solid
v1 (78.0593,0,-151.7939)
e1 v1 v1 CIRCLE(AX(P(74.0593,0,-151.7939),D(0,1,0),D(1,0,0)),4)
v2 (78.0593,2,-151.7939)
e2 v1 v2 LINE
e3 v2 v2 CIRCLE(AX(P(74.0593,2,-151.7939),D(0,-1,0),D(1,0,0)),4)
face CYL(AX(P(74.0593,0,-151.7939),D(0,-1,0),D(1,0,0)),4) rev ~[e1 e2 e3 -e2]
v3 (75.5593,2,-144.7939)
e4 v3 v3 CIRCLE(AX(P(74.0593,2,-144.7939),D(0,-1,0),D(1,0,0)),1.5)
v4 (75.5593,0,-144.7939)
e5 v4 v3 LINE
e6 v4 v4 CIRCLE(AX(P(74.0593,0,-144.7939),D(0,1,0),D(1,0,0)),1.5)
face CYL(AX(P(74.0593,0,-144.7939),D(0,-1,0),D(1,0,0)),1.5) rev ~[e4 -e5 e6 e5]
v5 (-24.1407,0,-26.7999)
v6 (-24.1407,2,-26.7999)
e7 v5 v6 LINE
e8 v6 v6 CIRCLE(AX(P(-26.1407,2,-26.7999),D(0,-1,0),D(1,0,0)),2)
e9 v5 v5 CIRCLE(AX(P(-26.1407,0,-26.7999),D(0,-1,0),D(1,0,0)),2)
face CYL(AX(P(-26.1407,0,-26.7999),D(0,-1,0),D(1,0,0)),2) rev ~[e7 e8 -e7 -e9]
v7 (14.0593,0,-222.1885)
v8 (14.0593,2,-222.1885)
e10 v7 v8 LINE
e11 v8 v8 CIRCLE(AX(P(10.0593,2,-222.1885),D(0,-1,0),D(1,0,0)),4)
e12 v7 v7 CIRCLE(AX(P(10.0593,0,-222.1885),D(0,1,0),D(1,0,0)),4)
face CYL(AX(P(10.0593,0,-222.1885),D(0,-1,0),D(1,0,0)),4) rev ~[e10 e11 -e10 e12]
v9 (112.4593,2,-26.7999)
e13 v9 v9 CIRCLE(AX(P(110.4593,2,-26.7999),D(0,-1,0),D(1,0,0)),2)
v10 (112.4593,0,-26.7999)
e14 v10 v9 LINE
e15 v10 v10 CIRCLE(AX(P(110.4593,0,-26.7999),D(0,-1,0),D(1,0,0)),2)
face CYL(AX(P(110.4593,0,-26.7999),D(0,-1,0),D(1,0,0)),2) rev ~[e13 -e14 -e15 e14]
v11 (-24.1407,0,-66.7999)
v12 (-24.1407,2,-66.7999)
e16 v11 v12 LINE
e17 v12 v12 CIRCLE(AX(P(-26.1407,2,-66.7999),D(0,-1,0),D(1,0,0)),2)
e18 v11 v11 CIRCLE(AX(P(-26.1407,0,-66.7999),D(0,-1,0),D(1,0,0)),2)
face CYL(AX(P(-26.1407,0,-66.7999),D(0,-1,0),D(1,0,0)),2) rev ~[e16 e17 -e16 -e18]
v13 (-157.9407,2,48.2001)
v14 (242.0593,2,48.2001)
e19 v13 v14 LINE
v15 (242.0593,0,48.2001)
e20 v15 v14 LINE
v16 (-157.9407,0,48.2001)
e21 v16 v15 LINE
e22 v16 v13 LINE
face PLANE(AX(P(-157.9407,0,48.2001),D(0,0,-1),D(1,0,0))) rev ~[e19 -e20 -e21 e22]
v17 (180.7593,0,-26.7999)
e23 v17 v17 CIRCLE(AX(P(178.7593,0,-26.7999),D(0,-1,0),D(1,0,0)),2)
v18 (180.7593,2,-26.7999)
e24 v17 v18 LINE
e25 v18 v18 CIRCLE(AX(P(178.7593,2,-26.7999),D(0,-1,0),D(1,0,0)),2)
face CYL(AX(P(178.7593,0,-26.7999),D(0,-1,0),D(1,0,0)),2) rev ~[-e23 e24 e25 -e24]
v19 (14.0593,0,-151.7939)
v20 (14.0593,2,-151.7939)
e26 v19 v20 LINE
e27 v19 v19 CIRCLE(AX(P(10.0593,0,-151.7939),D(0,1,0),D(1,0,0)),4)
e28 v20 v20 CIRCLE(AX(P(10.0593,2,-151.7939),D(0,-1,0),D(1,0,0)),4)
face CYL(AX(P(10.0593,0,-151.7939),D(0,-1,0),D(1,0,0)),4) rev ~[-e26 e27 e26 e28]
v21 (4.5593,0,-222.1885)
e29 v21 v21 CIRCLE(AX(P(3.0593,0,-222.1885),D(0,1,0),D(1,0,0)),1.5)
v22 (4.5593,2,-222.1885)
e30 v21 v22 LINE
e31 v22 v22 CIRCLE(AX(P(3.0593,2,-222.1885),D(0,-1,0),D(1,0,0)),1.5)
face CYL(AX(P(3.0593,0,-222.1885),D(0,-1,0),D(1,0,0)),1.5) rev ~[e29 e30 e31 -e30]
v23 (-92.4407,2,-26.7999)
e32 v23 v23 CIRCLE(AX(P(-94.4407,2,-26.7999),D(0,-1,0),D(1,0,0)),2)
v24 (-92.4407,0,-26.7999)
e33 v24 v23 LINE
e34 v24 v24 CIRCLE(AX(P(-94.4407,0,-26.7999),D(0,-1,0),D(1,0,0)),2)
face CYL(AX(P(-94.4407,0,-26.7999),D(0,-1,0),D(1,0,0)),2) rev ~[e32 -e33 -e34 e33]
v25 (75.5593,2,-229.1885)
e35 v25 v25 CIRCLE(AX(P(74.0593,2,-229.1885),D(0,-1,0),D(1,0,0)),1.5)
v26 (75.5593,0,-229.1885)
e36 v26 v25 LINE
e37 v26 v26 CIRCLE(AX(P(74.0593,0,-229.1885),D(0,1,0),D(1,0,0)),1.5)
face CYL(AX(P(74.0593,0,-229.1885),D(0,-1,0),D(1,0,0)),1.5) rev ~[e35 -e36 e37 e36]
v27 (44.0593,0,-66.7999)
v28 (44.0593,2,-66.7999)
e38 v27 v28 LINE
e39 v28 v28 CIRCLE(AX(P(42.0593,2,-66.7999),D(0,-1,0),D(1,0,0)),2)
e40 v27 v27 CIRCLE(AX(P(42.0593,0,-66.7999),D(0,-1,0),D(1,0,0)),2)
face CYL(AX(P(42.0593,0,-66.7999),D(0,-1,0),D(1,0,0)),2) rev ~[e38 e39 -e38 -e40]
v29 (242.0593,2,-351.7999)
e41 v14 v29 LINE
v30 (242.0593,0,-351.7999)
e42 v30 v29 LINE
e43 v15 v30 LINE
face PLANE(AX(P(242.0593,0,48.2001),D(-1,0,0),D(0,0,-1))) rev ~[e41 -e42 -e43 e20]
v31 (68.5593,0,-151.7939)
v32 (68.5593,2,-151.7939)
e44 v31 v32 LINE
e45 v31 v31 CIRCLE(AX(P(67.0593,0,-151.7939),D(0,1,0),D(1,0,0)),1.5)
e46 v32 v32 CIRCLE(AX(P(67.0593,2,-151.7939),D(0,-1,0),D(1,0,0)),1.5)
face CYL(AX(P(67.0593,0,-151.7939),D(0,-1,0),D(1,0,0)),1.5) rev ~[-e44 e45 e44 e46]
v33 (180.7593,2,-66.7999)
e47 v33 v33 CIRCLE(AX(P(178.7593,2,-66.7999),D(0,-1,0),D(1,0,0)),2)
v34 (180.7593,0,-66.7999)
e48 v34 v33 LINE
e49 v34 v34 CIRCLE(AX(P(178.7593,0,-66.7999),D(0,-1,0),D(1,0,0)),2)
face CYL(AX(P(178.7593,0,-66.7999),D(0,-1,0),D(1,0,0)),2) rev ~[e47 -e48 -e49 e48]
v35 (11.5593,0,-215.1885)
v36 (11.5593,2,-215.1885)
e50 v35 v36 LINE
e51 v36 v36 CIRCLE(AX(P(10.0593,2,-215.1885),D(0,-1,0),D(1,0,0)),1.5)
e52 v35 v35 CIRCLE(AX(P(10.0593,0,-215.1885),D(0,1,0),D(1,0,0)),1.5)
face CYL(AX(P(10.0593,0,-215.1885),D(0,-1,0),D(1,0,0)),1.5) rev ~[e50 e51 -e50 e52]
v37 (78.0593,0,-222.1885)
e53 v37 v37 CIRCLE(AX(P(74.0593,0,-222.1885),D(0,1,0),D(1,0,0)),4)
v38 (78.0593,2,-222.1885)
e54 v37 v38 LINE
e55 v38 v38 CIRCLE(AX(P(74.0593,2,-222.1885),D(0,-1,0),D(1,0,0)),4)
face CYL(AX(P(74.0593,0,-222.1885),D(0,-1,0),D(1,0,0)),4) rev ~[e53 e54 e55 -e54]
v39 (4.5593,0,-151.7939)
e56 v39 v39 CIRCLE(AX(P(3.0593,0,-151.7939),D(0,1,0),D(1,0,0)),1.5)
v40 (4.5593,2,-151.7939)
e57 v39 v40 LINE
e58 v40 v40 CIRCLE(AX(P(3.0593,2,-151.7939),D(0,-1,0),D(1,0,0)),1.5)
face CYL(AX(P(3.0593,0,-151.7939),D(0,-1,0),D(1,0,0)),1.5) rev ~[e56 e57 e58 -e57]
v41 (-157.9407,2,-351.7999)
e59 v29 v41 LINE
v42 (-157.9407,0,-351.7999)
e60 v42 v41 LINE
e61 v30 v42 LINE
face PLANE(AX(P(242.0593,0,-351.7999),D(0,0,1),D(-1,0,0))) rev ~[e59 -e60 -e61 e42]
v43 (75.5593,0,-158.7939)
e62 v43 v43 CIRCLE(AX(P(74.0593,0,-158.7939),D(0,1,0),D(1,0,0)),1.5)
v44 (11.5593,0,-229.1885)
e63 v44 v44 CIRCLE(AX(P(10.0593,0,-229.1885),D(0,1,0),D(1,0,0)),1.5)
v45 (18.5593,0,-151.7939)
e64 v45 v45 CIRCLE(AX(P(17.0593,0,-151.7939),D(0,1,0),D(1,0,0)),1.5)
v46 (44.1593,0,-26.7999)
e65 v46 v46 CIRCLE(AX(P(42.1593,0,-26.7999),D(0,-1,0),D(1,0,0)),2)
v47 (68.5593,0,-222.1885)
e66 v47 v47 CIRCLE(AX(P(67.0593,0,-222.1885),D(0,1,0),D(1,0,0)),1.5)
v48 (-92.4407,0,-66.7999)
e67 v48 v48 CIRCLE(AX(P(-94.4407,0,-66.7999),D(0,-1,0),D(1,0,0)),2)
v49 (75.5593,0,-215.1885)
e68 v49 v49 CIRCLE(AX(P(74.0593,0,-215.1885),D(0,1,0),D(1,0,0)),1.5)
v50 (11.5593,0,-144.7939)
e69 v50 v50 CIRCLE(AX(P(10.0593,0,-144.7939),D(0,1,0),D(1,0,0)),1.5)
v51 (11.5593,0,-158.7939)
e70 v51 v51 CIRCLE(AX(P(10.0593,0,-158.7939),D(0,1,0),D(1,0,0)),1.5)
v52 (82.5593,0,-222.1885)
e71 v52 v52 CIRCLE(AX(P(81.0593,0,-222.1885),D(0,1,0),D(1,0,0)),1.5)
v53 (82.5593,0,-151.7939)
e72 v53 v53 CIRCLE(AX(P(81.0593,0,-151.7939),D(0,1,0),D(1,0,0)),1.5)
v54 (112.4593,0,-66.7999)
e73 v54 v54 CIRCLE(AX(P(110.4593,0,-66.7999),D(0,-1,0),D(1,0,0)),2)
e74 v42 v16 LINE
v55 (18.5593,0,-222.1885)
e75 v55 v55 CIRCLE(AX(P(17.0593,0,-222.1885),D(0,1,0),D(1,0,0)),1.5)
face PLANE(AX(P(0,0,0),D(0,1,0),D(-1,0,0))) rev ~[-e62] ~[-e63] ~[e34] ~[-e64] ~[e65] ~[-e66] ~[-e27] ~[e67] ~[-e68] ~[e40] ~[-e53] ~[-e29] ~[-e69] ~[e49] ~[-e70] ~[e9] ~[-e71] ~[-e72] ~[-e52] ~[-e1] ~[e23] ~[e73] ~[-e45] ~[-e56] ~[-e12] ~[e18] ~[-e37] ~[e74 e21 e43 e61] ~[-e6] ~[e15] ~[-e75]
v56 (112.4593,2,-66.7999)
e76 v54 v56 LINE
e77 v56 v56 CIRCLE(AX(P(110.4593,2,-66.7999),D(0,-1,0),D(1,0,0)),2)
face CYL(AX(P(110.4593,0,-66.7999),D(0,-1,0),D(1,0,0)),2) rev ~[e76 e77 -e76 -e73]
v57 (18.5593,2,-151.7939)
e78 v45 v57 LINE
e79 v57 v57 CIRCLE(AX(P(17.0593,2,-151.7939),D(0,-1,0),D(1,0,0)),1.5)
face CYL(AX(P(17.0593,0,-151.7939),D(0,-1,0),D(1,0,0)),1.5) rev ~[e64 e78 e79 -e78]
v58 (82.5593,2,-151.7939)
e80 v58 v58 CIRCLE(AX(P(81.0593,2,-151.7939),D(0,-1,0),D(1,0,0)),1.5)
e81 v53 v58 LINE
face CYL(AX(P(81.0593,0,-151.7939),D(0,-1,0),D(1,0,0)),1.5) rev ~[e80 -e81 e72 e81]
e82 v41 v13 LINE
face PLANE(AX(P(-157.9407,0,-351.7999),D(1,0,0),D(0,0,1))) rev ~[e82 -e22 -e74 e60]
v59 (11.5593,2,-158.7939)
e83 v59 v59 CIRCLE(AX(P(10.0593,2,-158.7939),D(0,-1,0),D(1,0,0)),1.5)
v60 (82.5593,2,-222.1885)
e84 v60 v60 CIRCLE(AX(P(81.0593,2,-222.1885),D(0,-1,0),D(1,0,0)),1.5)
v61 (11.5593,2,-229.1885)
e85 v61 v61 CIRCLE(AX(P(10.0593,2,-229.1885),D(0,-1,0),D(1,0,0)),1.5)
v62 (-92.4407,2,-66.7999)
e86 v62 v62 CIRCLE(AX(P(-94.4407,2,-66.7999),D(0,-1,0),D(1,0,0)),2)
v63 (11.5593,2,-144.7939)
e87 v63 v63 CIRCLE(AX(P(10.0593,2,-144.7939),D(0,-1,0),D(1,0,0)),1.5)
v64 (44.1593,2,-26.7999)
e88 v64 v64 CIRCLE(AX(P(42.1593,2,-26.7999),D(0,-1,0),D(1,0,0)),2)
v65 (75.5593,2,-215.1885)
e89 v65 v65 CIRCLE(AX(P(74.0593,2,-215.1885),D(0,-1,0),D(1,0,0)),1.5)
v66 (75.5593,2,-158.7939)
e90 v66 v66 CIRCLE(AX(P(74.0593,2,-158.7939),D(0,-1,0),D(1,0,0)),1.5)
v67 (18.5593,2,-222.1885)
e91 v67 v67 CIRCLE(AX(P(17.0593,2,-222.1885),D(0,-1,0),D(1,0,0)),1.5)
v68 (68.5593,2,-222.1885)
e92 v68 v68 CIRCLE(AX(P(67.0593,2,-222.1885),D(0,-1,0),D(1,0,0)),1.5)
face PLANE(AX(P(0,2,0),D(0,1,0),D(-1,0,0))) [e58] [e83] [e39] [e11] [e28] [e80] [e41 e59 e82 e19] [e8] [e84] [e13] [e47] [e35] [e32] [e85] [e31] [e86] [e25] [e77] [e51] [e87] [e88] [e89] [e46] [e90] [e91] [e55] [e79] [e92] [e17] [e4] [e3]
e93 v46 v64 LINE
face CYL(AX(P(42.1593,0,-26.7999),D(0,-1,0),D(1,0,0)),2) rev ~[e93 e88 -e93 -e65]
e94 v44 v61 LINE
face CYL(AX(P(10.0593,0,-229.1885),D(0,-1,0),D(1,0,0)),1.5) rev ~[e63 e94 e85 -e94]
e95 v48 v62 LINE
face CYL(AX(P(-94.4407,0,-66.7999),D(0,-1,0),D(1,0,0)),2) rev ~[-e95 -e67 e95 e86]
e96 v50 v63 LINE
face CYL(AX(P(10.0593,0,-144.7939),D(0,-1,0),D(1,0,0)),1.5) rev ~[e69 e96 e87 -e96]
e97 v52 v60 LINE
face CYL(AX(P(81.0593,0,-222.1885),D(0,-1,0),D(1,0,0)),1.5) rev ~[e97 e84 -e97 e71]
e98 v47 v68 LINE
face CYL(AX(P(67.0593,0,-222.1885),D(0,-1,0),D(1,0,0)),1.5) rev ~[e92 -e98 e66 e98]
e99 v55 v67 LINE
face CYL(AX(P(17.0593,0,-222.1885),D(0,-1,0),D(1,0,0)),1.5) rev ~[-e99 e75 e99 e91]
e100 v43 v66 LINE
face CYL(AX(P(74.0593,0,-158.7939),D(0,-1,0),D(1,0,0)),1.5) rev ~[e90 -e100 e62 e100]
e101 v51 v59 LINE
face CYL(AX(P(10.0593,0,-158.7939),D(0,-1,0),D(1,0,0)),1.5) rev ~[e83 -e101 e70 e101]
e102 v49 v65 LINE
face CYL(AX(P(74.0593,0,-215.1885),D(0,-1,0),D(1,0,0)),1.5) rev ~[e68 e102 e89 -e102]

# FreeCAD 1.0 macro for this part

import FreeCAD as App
import Part
import Sketcher
from FreeCAD import Vector

doc = App.newDocument("Part")
body = doc.addObject("PartDesign::Body", "Body")

# Sketch on XZ plane
sketch1 = body.newObject("Sketcher::SketchObject", "Sketch")
sketch1.AttachmentSupport = (doc.getObject("XZ_Plane"), [""])
sketch1.MapMode = "FlatFace"
sketch1.addGeometry([
    Part.LineSegment(Vector(-158, -352, 0), Vector(-158, 48, 0)),
    Part.LineSegment(Vector(-158, 48, 0), Vector(242, 48, 0)),
    Part.LineSegment(Vector(242, 48, 0), Vector(242, -352, 0)),
    Part.LineSegment(Vector(242, -352, 0), Vector(-158, -352, 0)),
], False)
sketch1.addConstraint([
    Sketcher.Constraint("Coincident", 0, 2, 1, 1),
    Sketcher.Constraint("Coincident", 1, 2, 2, 1),
    Sketcher.Constraint("Coincident", 2, 2, 3, 1),
    Sketcher.Constraint("Coincident", 3, 2, 0, 1),
    Sketcher.Constraint("Vertical", 0),
    Sketcher.Constraint("Horizontal", 1),
    Sketcher.Constraint("Vertical", 2),
    Sketcher.Constraint("Horizontal", 3),
    Sketcher.Constraint("Equal", 3, 0),
    Sketcher.Constraint("DistanceX", 1, 1, 1, 2, 400.0),
    Sketcher.Constraint("DistanceY", -1, 1, 0, 2, 48.2),
    Sketcher.Constraint("DistanceX", 0, 2, -1, 1, 157.9407),
])
pad1 = body.newObject("PartDesign::Pad", "Pad")
pad1.Profile = sketch1
pad1.Length = 2
pad1.Reversed = True

# Sketch on XZ plane
sketch2 = body.newObject("Sketcher::SketchObject", "Sketch001")
sketch2.AttachmentSupport = (doc.getObject("XZ_Plane"), [""])
sketch2.MapMode = "FlatFace"
sketch2.addGeometry([
    Part.Circle(Vector(10.1, -151.8, 0), Vector(0, 0, 1), 4),
    Part.Circle(Vector(74.1, -151.8, 0), Vector(0, 0, 1), 4),
    Part.Circle(Vector(10.1, -222.2, 0), Vector(0, 0, 1), 4),
    Part.Circle(Vector(74.1, -222.2, 0), Vector(0, 0, 1), 4),
], False)
sketch2.addConstraint([
    Sketcher.Constraint("Equal", 0, 1),
    Sketcher.Constraint("Equal", 1, 2),
    Sketcher.Constraint("Equal", 2, 3),
    Sketcher.Constraint("Horizontal", 0, 3, 1, 3),
    Sketcher.Constraint("Horizontal", 2, 3, 3, 3),
    Sketcher.Constraint("Vertical", 0, 3, 2, 3),
    Sketcher.Constraint("Vertical", 1, 3, 3, 3),
    Sketcher.Constraint("Diameter", 0, 8.0),
    Sketcher.Constraint("DistanceX", 0, 3, 1, 3, 64.0),
    Sketcher.Constraint("DistanceY", 2, 3, 0, 3, 70.3946),
    Sketcher.Constraint("DistanceY", 0, 3, -1, 1, 151.794),
    Sketcher.Constraint("DistanceX", -1, 1, 0, 3, 10.0593),
])
pocket1 = body.newObject("PartDesign::Pocket", "Pocket")
pocket1.Profile = sketch2
pocket1.Length = 10

# Sketch on XZ plane
sketch3 = body.newObject("Sketcher::SketchObject", "Sketch002")
sketch3.AttachmentSupport = (doc.getObject("XZ_Plane"), [""])
sketch3.MapMode = "FlatFace"
sketch3.addGeometry([
    Part.Circle(Vector(178.8, -26.8, 0), Vector(0, 0, 1), 2),  # 0
    Part.Circle(Vector(-94.4, -26.8, 0), Vector(0, 0, 1), 2),  # 1
    Part.Circle(Vector(-26.1, -26.8, 0), Vector(0, 0, 1), 2),  # 2
    Part.Circle(Vector(42.2, -26.8, 0), Vector(0, 0, 1), 2),  # 3
    Part.Circle(Vector(110.5, -26.8, 0), Vector(0, 0, 1), 2),  # 4
    Part.Circle(Vector(178.8, -66.8, 0), Vector(0, 0, 1), 2),  # 5
    Part.Circle(Vector(110.5, -66.8, 0), Vector(0, 0, 1), 2),  # 6
    Part.Circle(Vector(42.1, -66.8, 0), Vector(0, 0, 1), 2),  # 7
    Part.Circle(Vector(-26.1, -66.8, 0), Vector(0, 0, 1), 2),  # 8
    Part.Circle(Vector(-94.4, -66.8, 0), Vector(0, 0, 1), 2),  # 9
], False)
sketch3.addConstraint([
    Sketcher.Constraint("Equal", 0, 1),
    Sketcher.Constraint("Equal", 1, 2),
    Sketcher.Constraint("Equal", 2, 3),
    Sketcher.Constraint("Equal", 3, 4),
    Sketcher.Constraint("Equal", 4, 5),
    Sketcher.Constraint("Equal", 5, 6),
    Sketcher.Constraint("Equal", 6, 7),
    Sketcher.Constraint("Equal", 7, 8),
    Sketcher.Constraint("Equal", 8, 9),
    Sketcher.Constraint("Horizontal", 0, 3, 1, 3),
    Sketcher.Constraint("Horizontal", 1, 3, 2, 3),
    Sketcher.Constraint("Horizontal", 2, 3, 3, 3),
    Sketcher.Constraint("Horizontal", 3, 3, 4, 3),
    Sketcher.Constraint("Horizontal", 5, 3, 6, 3),
    Sketcher.Constraint("Horizontal", 6, 3, 7, 3),
    Sketcher.Constraint("Horizontal", 7, 3, 8, 3),
    Sketcher.Constraint("Horizontal", 8, 3, 9, 3),
    Sketcher.Constraint("Vertical", 0, 3, 5, 3),
    Sketcher.Constraint("Vertical", 4, 3, 6, 3),
    Sketcher.Constraint("Vertical", 2, 3, 8, 3),
    Sketcher.Constraint("Vertical", 1, 3, 9, 3),
    Sketcher.Constraint("Diameter", 0, 4.0),
    Sketcher.Constraint("DistanceY", 5, 3, 0, 3, 40.0),
    Sketcher.Constraint("DistanceX", 1, 3, 2, 3, 68.3),
    Sketcher.Constraint("DistanceX", 2, 3, 3, 3, 68.3),
    Sketcher.Constraint("DistanceX", 4, 3, 0, 3, 68.3),
    Sketcher.Constraint("DistanceX", 3, 3, 4, 3, 68.3),
    Sketcher.Constraint("DistanceY", 0, 3, -1, 1, 26.8),
    Sketcher.Constraint("DistanceX", 7, 3, 3, 3, 0.1),
    Sketcher.Constraint("DistanceX", -1, 1, 0, 3, 178.7593),
])
pocket2 = body.newObject("PartDesign::Pocket", "Pocket001")
pocket2.Profile = sketch3
pocket2.Length = 10

# Sketch on XZ plane
sketch4 = body.newObject("Sketcher::SketchObject", "Sketch003")
sketch4.AttachmentSupport = (doc.getObject("XZ_Plane"), [""])
sketch4.MapMode = "FlatFace"
sketch4.addGeometry([
    Part.Circle(Vector(81.1, -222.2, 0), Vector(0, 0, 1), 1.5),  # 0
    Part.Circle(Vector(74.1, -215.2, 0), Vector(0, 0, 1), 1.5),  # 1
    Part.Circle(Vector(74.1, -229.2, 0), Vector(0, 0, 1), 1.5),  # 2
    Part.Circle(Vector(67.1, -222.2, 0), Vector(0, 0, 1), 1.5),  # 3
    Part.Circle(Vector(17.1, -222.2, 0), Vector(0, 0, 1), 1.5),  # 4
    Part.Circle(Vector(10.1, -215.2, 0), Vector(0, 0, 1), 1.5),  # 5
    Part.Circle(Vector(10.1, -229.2, 0), Vector(0, 0, 1), 1.5),  # 6
    Part.Circle(Vector(3.1, -222.2, 0), Vector(0, 0, 1), 1.5),  # 7
    Part.Circle(Vector(17.1, -151.8, 0), Vector(0, 0, 1), 1.5),  # 8
    Part.Circle(Vector(10.1, -144.8, 0), Vector(0, 0, 1), 1.5),  # 9
    Part.Circle(Vector(10.1, -158.8, 0), Vector(0, 0, 1), 1.5),  # 10
    Part.Circle(Vector(3.1, -151.8, 0), Vector(0, 0, 1), 1.5),  # 11
    Part.Circle(Vector(81.1, -151.8, 0), Vector(0, 0, 1), 1.5),  # 12
    Part.Circle(Vector(74.1, -144.8, 0), Vector(0, 0, 1), 1.5),  # 13
    Part.Circle(Vector(74.1, -158.8, 0), Vector(0, 0, 1), 1.5),  # 14
    Part.Circle(Vector(67.1, -151.8, 0), Vector(0, 0, 1), 1.5),  # 15
], False)
sketch4.addConstraint([
    Sketcher.Constraint("Equal", 0, 1),
    Sketcher.Constraint("Equal", 1, 2),
    Sketcher.Constraint("Equal", 2, 3),
    Sketcher.Constraint("Equal", 3, 4),
    Sketcher.Constraint("Equal", 4, 5),
    Sketcher.Constraint("Equal", 5, 6),
    Sketcher.Constraint("Equal", 6, 7),
    Sketcher.Constraint("Equal", 7, 8),
    Sketcher.Constraint("Equal", 8, 9),
    Sketcher.Constraint("Equal", 9, 10),
    Sketcher.Constraint("Equal", 10, 11),
    Sketcher.Constraint("Equal", 11, 12),
    Sketcher.Constraint("Equal", 12, 13),
    Sketcher.Constraint("Equal", 13, 14),
    Sketcher.Constraint("Equal", 14, 15),
    Sketcher.Constraint("Horizontal", 0, 3, 3, 3),
    Sketcher.Constraint("Horizontal", 3, 3, 4, 3),
    Sketcher.Constraint("Horizontal", 1, 3, 5, 3),
    Sketcher.Constraint("Horizontal", 2, 3, 6, 3),
    Sketcher.Constraint("Horizontal", 4, 3, 7, 3),
    Sketcher.Constraint("Horizontal", 8, 3, 11, 3),
    Sketcher.Constraint("Horizontal", 11, 3, 12, 3),
    Sketcher.Constraint("Horizontal", 9, 3, 13, 3),
    Sketcher.Constraint("Horizontal", 10, 3, 14, 3),
    Sketcher.Constraint("Horizontal", 12, 3, 15, 3),
    Sketcher.Constraint("Vertical", 1, 3, 2, 3),
    Sketcher.Constraint("Vertical", 5, 3, 6, 3),
    Sketcher.Constraint("Vertical", 4, 3, 8, 3),
    Sketcher.Constraint("Vertical", 6, 3, 9, 3),
    Sketcher.Constraint("Vertical", 9, 3, 10, 3),
    Sketcher.Constraint("Vertical", 7, 3, 11, 3),
    Sketcher.Constraint("Vertical", 0, 3, 12, 3),
    Sketcher.Constraint("Vertical", 2, 3, 13, 3),
    Sketcher.Constraint("Vertical", 13, 3, 14, 3),
    Sketcher.Constraint("Vertical", 3, 3, 15, 3),
    Sketcher.Constraint("Diameter", 0, 3.0),
    Sketcher.Constraint("DistanceY", 2, 3, 1, 3, 14.0),
    Sketcher.Constraint("DistanceX", 3, 3, 0, 3, 14.0),
    Sketcher.Constraint("DistanceX", 7, 3, 4, 3, 14.0),
    Sketcher.Constraint("DistanceY", 10, 3, 9, 3, 14.0),
    Sketcher.Constraint("DistanceX", 1, 3, 0, 3, 7.0),
    Sketcher.Constraint("DistanceY", 0, 3, 1, 3, 7.0),
    Sketcher.Constraint("DistanceX", 4, 3, 3, 3, 50.0),
    Sketcher.Constraint("DistanceX", 5, 3, 4, 3, 7.0),
    Sketcher.Constraint("DistanceY", 8, 3, 9, 3, 7.0),
    Sketcher.Constraint("DistanceY", 8, 3, -1, 1, 151.794),
    Sketcher.Constraint("DistanceX", -1, 1, 0, 3, 81.0593),
    Sketcher.Constraint("DistanceY", 0, 3, -1, 1, 222.1885),
])
pocket3 = body.newObject("PartDesign::Pocket", "Pocket002")
pocket3.Profile = sketch4
pocket3.Length = 10

doc.recompute()
